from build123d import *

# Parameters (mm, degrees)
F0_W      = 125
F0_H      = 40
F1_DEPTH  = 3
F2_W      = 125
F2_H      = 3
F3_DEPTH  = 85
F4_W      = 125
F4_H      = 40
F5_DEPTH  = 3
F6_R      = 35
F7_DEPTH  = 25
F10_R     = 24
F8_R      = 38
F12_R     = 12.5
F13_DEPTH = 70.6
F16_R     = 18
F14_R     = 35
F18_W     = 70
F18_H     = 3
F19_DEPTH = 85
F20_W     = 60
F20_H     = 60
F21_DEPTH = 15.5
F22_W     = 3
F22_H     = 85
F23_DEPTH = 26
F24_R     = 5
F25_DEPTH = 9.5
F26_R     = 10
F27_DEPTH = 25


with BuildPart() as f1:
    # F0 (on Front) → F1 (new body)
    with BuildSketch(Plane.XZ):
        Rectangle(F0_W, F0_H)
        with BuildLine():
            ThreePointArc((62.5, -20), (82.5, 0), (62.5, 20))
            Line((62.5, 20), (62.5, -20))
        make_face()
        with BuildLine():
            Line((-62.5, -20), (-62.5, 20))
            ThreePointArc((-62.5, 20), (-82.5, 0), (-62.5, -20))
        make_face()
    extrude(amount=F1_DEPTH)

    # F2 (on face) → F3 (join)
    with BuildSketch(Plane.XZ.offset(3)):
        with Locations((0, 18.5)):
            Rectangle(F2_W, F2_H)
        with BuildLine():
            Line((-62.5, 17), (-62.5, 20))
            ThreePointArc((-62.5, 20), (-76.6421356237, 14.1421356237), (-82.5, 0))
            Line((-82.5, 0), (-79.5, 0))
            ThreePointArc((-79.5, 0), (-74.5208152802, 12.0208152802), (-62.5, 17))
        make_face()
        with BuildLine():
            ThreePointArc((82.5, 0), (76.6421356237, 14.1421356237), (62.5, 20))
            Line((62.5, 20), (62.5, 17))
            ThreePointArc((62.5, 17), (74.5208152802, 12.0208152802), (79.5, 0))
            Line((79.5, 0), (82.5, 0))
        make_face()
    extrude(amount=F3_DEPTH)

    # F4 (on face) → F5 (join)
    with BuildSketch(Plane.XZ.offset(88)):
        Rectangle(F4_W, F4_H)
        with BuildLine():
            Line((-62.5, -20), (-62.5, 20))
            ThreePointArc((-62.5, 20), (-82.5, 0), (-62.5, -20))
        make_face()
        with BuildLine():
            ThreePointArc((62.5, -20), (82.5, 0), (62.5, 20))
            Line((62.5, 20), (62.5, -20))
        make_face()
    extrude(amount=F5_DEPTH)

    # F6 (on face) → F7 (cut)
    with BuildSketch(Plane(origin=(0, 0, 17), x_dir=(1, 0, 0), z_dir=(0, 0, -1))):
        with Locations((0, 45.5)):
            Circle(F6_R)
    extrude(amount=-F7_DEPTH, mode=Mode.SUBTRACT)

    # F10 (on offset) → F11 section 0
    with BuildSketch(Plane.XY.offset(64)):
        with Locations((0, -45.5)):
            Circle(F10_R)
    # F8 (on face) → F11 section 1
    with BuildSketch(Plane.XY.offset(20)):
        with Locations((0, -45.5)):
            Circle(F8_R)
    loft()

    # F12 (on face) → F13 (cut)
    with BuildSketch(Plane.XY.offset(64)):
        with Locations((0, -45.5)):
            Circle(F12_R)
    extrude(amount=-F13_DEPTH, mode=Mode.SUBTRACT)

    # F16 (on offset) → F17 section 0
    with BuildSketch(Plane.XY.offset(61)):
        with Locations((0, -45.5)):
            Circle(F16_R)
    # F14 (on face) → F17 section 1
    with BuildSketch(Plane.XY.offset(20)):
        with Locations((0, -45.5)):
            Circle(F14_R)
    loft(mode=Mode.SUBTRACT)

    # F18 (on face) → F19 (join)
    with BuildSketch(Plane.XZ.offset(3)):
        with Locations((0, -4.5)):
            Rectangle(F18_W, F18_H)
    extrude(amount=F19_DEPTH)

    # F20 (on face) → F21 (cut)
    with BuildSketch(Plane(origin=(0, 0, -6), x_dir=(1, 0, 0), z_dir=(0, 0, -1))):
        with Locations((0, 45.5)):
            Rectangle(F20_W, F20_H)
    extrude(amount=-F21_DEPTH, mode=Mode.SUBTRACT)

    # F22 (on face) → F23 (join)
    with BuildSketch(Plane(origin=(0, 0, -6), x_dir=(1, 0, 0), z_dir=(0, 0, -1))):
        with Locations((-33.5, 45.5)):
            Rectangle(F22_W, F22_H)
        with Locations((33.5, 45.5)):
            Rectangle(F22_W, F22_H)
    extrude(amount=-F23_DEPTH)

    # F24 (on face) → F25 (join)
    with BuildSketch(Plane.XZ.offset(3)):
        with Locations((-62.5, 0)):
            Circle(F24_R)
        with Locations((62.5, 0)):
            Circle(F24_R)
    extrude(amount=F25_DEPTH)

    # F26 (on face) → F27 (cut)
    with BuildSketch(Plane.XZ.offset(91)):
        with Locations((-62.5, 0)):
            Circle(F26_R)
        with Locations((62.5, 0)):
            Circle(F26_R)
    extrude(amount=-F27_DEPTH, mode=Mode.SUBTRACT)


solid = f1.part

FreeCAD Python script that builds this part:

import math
import FreeCAD as App
import Part
import Sketcher

V = App.Vector
Q = App.Units.Quantity

doc = App.newDocument("Part")
body = doc.addObject("PartDesign::Body", "Body")

# Sketch on XZ plane
sketch1 = body.newObject("Sketcher::SketchObject", "Sketch")
sketch1.AttachmentSupport = (doc.getObject("XZ_Plane"), [""])
sketch1.MapMode = "FlatFace"
sketch1.addGeometry(Part.LineSegment(V(-62, -20, 0), V(62, -20, 0)), False)
sketch1.addGeometry(Part.ArcOfCircle(Part.Circle(V(62, 0, 0), V(0, 0, 1), 20), math.radians(-90), math.radians(90)), False)
sketch1.addGeometry(Part.LineSegment(V(62, 20, 0), V(-62, 20, 0)), False)
sketch1.addGeometry(Part.ArcOfCircle(Part.Circle(V(-62, 0, 0), V(0, 0, 1), 20), math.radians(90), math.radians(270)), False)
sketch1.addConstraint(Sketcher.Constraint("Tangent", 0, 2, 1, 1))
sketch1.addConstraint(Sketcher.Constraint("Tangent", 1, 2, 2, 1))
sketch1.addConstraint(Sketcher.Constraint("Tangent", 2, 2, 3, 1))
sketch1.addConstraint(Sketcher.Constraint("Tangent", 3, 2, 0, 1))
sketch1.addConstraint(Sketcher.Constraint("Horizontal", 0))
sketch1.addConstraint(Sketcher.Constraint("Horizontal", 2))
sketch1.addConstraint(Sketcher.Constraint("Symmetric", 1, 3, 3, 3, -1, 1))
sketch1.addConstraint(Sketcher.Constraint("Radius", 1, Q("20 mm")))
sketch1.addConstraint(Sketcher.Constraint("DistanceX", 0, 1, 0, 2, Q("125 mm")))
pad1 = body.newObject("PartDesign::Pad", "Pad")
pad1.Profile = sketch1
pad1.Length = 3

# Sketch on XZ plane
sketch2 = body.newObject("Sketcher::SketchObject", "Sketch001")
sketch2.AttachmentSupport = (doc.getObject("XZ_Plane"), [""])
sketch2.MapMode = "FlatFace"
sketch2.AttachmentOffset = App.Placement(V(0, 0, 3), App.Rotation())
sketch2.addGeometry(Part.LineSegment(V(-62.5, 17, 0), V(62.5, 17, 0)), False)
sketch2.addGeometry(Part.ArcOfCircle(Part.Circle(V(62.5, 0, 0), V(0, 0, 1), 17), math.radians(0), math.radians(90)), False)
sketch2.addGeometry(Part.LineSegment(V(79.5, 0, 0), V(82.5, 0, 0)), False)
sketch2.addGeometry(Part.ArcOfCircle(Part.Circle(V(62.5, 0, 0), V(0, 0, 1), 20), math.radians(0), math.radians(90)), False)
sketch2.addGeometry(Part.LineSegment(V(62.5, 20, 0), V(-62.5, 20, 0)), False)
sketch2.addGeometry(Part.ArcOfCircle(Part.Circle(V(-62.5, 0, 0), V(0, 0, 1), 20), math.radians(90), math.radians(180)), False)
sketch2.addGeometry(Part.LineSegment(V(-82.5, 0, 0), V(-79.5, 0, 0)), False)
sketch2.addGeometry(Part.ArcOfCircle(Part.Circle(V(-62.5, 0, 0), V(0, 0, 1), 17), math.radians(90), math.radians(180)), False)
sketch2.addConstraint(Sketcher.Constraint("Tangent", 0, 2, 1, 2))
sketch2.addConstraint(Sketcher.Constraint("Coincident", 1, 1, 2, 1))
sketch2.addConstraint(Sketcher.Constraint("Coincident", 2, 2, 3, 1))
sketch2.addConstraint(Sketcher.Constraint("Tangent", 3, 2, 4, 1))
sketch2.addConstraint(Sketcher.Constraint("Tangent", 4, 2, 5, 1))
sketch2.addConstraint(Sketcher.Constraint("Coincident", 5, 2, 6, 1))
sketch2.addConstraint(Sketcher.Constraint("Coincident", 6, 2, 7, 2))
sketch2.addConstraint(Sketcher.Constraint("Tangent", 7, 1, 0, 1))
sketch2.addConstraint(Sketcher.Constraint("Horizontal", 0))
sketch2.addConstraint(Sketcher.Constraint("Horizontal", 2))
sketch2.addConstraint(Sketcher.Constraint("Horizontal", 4))
sketch2.addConstraint(Sketcher.Constraint("Horizontal", 6))
sketch2.addConstraint(Sketcher.Constraint("Coincident", 3, 3, 1, 3))
sketch2.addConstraint(Sketcher.Constraint("Coincident", 7, 3, 5, 3))
sketch2.addConstraint(Sketcher.Constraint("Equal", 3, 5))
sketch2.addConstraint(Sketcher.Constraint("Symmetric", 1, 3, 5, 3, -1, 1))
sketch2.addConstraint(Sketcher.Constraint("PointOnObject", 1, 1, -1))
sketch2.addConstraint(Sketcher.Constraint("PointOnObject", 5, 2, -1))
sketch2.addConstraint(Sketcher.Constraint("Radius", 1, Q("17 mm")))
sketch2.addConstraint(Sketcher.Constraint("Radius", 3, Q("20 mm")))
sketch2.addConstraint(Sketcher.Constraint("DistanceX", 0, 1, 0, 2, Q("125 mm")))
pad2 = body.newObject("PartDesign::Pad", "Pad001")
pad2.Profile = sketch2
pad2.Length = 85

# Sketch on XZ plane
sketch3 = body.newObject("Sketcher::SketchObject", "Sketch002")
sketch3.AttachmentSupport = (doc.getObject("XZ_Plane"), [""])
sketch3.MapMode = "FlatFace"
sketch3.AttachmentOffset = App.Placement(V(0, 0, 88), App.Rotation())
sketch3.addGeometry(Part.LineSegment(V(-62, -20, 0), V(62, -20, 0)), False)
sketch3.addGeometry(Part.ArcOfCircle(Part.Circle(V(62, 0, 0), V(0, 0, 1), 20), math.radians(-90), math.radians(90)), False)
sketch3.addGeometry(Part.LineSegment(V(62, 20, 0), V(-62, 20, 0)), False)
sketch3.addGeometry(Part.ArcOfCircle(Part.Circle(V(-62, 0, 0), V(0, 0, 1), 20), math.radians(90), math.radians(270)), False)
sketch3.addConstraint(Sketcher.Constraint("Tangent", 0, 2, 1, 1))
sketch3.addConstraint(Sketcher.Constraint("Tangent", 1, 2, 2, 1))
sketch3.addConstraint(Sketcher.Constraint("Tangent", 2, 2, 3, 1))
sketch3.addConstraint(Sketcher.Constraint("Tangent", 3, 2, 0, 1))
sketch3.addConstraint(Sketcher.Constraint("Horizontal", 0))
sketch3.addConstraint(Sketcher.Constraint("Horizontal", 2))
sketch3.addConstraint(Sketcher.Constraint("Symmetric", 1, 3, 3, 3, -1, 1))
sketch3.addConstraint(Sketcher.Constraint("Radius", 1, Q("20 mm")))
sketch3.addConstraint(Sketcher.Constraint("DistanceX", 0, 1, 0, 2, Q("125 mm")))
pad3 = body.newObject("PartDesign::Pad", "Pad002")
pad3.Profile = sketch3
pad3.Length = 3

# Sketch on XY plane
sketch4 = body.newObject("Sketcher::SketchObject", "Sketch003")
sketch4.AttachmentSupport = (doc.getObject("XY_Plane"), [""])
sketch4.MapMode = "FlatFace"
sketch4.AttachmentOffset = App.Placement(V(0, 0, 17), App.Rotation())
sketch4.addGeometry(Part.Circle(V(0, -46, 0), V(0, 0, 1), 35), False)
sketch4.addConstraint(Sketcher.Constraint("PointOnObject", 0, 3, -2))
sketch4.addConstraint(Sketcher.Constraint("Diameter", 0, Q("70 mm")))
sketch4.addConstraint(Sketcher.Constraint("DistanceY", 0, 3, -1, 1, Q("45.5 mm")))
pocket1 = body.newObject("PartDesign::Pocket", "Pocket")
pocket1.Profile = sketch4
pocket1.Length = 25
pocket1.Reversed = True

# Sketch on XY plane
sketch5 = body.newObject("Sketcher::SketchObject", "Sketch004")
sketch5.AttachmentSupport = (doc.getObject("XY_Plane"), [""])
sketch5.MapMode = "FlatFace"
sketch5.AttachmentOffset = App.Placement(V(0, 0, 64), App.Rotation())
sketch5.addGeometry(Part.Circle(V(0, -46, 0), V(0, 0, 1), 24), False)
sketch5.addConstraint(Sketcher.Constraint("PointOnObject", 0, 3, -2))
sketch5.addConstraint(Sketcher.Constraint("Diameter", 0, Q("48 mm")))
sketch5.addConstraint(Sketcher.Constraint("DistanceY", 0, 3, -1, 1, Q("45.5 mm")))

# Sketch on XY plane
sketch6 = body.newObject("Sketcher::SketchObject", "Sketch005")
sketch6.AttachmentSupport = (doc.getObject("XY_Plane"), [""])
sketch6.MapMode = "FlatFace"
sketch6.AttachmentOffset = App.Placement(V(0, 0, 20), App.Rotation())
sketch6.addGeometry(Part.Circle(V(0, -46, 0), V(0, 0, 1), 38), False)
sketch6.addConstraint(Sketcher.Constraint("PointOnObject", 0, 3, -2))
sketch6.addConstraint(Sketcher.Constraint("Diameter", 0, Q("76 mm")))
sketch6.addConstraint(Sketcher.Constraint("DistanceY", 0, 3, -1, 1, Q("45.5 mm")))

additiveloft = body.newObject("PartDesign::AdditiveLoft", "AdditiveLoft")
additiveloft.Profile = sketch5
additiveloft.Sections = [sketch6]

# Sketch on XY plane
sketch7 = body.newObject("Sketcher::SketchObject", "Sketch006")
sketch7.AttachmentSupport = (doc.getObject("XY_Plane"), [""])
sketch7.MapMode = "FlatFace"
sketch7.AttachmentOffset = App.Placement(V(0, 0, 64), App.Rotation())
sketch7.addGeometry(Part.Circle(V(0, -46, 0), V(0, 0, 1), 12), False)
sketch7.addConstraint(Sketcher.Constraint("PointOnObject", 0, 3, -2))
sketch7.addConstraint(Sketcher.Constraint("Diameter", 0, Q("25 mm")))
sketch7.addConstraint(Sketcher.Constraint("DistanceY", 0, 3, -1, 1, Q("45.5 mm")))
pocket2 = body.newObject("PartDesign::Pocket", "Pocket001")
pocket2.Profile = sketch7
pocket2.Length = 70.6

# Sketch on XY plane
sketch8 = body.newObject("Sketcher::SketchObject", "Sketch007")
sketch8.AttachmentSupport = (doc.getObject("XY_Plane"), [""])
sketch8.MapMode = "FlatFace"
sketch8.AttachmentOffset = App.Placement(V(0, 0, 61), App.Rotation())
sketch8.addGeometry(Part.Circle(V(0, -46, 0), V(0, 0, 1), 18), False)
sketch8.addConstraint(Sketcher.Constraint("PointOnObject", 0, 3, -2))
sketch8.addConstraint(Sketcher.Constraint("Diameter", 0, Q("36 mm")))
sketch8.addConstraint(Sketcher.Constraint("DistanceY", 0, 3, -1, 1, Q("45.5 mm")))

# Sketch on XY plane
sketch9 = body.newObject("Sketcher::SketchObject", "Sketch008")
sketch9.AttachmentSupport = (doc.getObject("XY_Plane"), [""])
sketch9.MapMode = "FlatFace"
sketch9.AttachmentOffset = App.Placement(V(0, 0, 20), App.Rotation())
sketch9.addGeometry(Part.Circle(V(0, -46, 0), V(0, 0, 1), 35), False)
sketch9.addConstraint(Sketcher.Constraint("PointOnObject", 0, 3, -2))
sketch9.addConstraint(Sketcher.Constraint("Diameter", 0, Q("70 mm")))
sketch9.addConstraint(Sketcher.Constraint("DistanceY", 0, 3, -1, 1, Q("45.5 mm")))

subtractiveloft = body.newObject("PartDesign::SubtractiveLoft", "SubtractiveLoft")
subtractiveloft.Profile = sketch8
subtractiveloft.Sections = [sketch9]

# Sketch on XZ plane
sketch10 = body.newObject("Sketcher::SketchObject", "Sketch009")
sketch10.AttachmentSupport = (doc.getObject("XZ_Plane"), [""])
sketch10.MapMode = "FlatFace"
sketch10.AttachmentOffset = App.Placement(V(0, 0, 3), App.Rotation())
sketch10.addGeometry(Part.LineSegment(V(-35, -3, 0), V(-35, -6, 0)), False)
sketch10.addGeometry(Part.LineSegment(V(-35, -6, 0), V(35, -6, 0)), False)
sketch10.addGeometry(Part.LineSegment(V(35, -6, 0), V(35, -3, 0)), False)
sketch10.addGeometry(Part.LineSegment(V(35, -3, 0), V(-35, -3, 0)), False)
sketch10.addConstraint(Sketcher.Constraint("Coincident", 0, 2, 1, 1))
sketch10.addConstraint(Sketcher.Constraint("Coincident", 1, 2, 2, 1))
sketch10.addConstraint(Sketcher.Constraint("Coincident", 2, 2, 3, 1))
sketch10.addConstraint(Sketcher.Constraint("Coincident", 3, 2, 0, 1))
sketch10.addConstraint(Sketcher.Constraint("Vertical", 0))
sketch10.addConstraint(Sketcher.Constraint("Horizontal", 1))
sketch10.addConstraint(Sketcher.Constraint("Vertical", 2))
sketch10.addConstraint(Sketcher.Constraint("Horizontal", 3))
sketch10.addConstraint(Sketcher.Constraint("DistanceX", 1, 1, 1, 2, Q("70 mm")))
sketch10.addConstraint(Sketcher.Constraint("DistanceY", 0, 2, 0, 1, Q("3 mm")))
sketch10.addConstraint(Sketcher.Constraint("DistanceX", 0, 2, -1, 1, Q("35 mm")))
sketch10.addConstraint(Sketcher.Constraint("DistanceY", 0, 2, -1, 1, Q("6 mm")))
pad4 = body.newObject("PartDesign::Pad", "Pad003")
pad4.Profile = sketch10
pad4.Length = 85

# Sketch on XY plane
sketch11 = body.newObject("Sketcher::SketchObject", "Sketch010")
sketch11.AttachmentSupport = (doc.getObject("XY_Plane"), [""])
sketch11.MapMode = "FlatFace"
sketch11.AttachmentOffset = App.Placement(V(0, 0, -6), App.Rotation())
sketch11.addGeometry(Part.LineSegment(V(-30, -76, 0), V(-30, -16, 0)), False)
sketch11.addGeometry(Part.LineSegment(V(-30, -16, 0), V(30, -16, 0)), False)
sketch11.addGeometry(Part.LineSegment(V(30, -16, 0), V(30, -76, 0)), False)
sketch11.addGeometry(Part.LineSegment(V(30, -76, 0), V(-30, -76, 0)), False)
sketch11.addConstraint(Sketcher.Constraint("Coincident", 0, 2, 1, 1))
sketch11.addConstraint(Sketcher.Constraint("Coincident", 1, 2, 2, 1))
sketch11.addConstraint(Sketcher.Constraint("Coincident", 2, 2, 3, 1))
sketch11.addConstraint(Sketcher.Constraint("Coincident", 3, 2, 0, 1))
sketch11.addConstraint(Sketcher.Constraint("Vertical", 0))
sketch11.addConstraint(Sketcher.Constraint("Horizontal", 1))
sketch11.addConstraint(Sketcher.Constraint("Vertical", 2))
sketch11.addConstraint(Sketcher.Constraint("Horizontal", 3))
sketch11.addConstraint(Sketcher.Constraint("Equal", 3, 0))
sketch11.addConstraint(Sketcher.Constraint("DistanceX", 1, 1, 1, 2, Q("60 mm")))
sketch11.addConstraint(Sketcher.Constraint("DistanceX", 0, 2, -1, 1, Q("30 mm")))
sketch11.addConstraint(Sketcher.Constraint("DistanceY", 0, 2, -1, 1, Q("15.5 mm")))
pocket3 = body.newObject("PartDesign::Pocket", "Pocket002")
pocket3.Profile = sketch11
pocket3.Length = 15.5
pocket3.Reversed = True

# Sketch on XY plane
sketch12 = body.newObject("Sketcher::SketchObject", "Sketch011")
sketch12.AttachmentSupport = (doc.getObject("XY_Plane"), [""])
sketch12.MapMode = "FlatFace"
sketch12.AttachmentOffset = App.Placement(V(0, 0, -6), App.Rotation())
sketch12.addGeometry(Part.LineSegment(V(-35, -88, 0), V(-35, -3, 0)), False)
sketch12.addGeometry(Part.LineSegment(V(-35, -3, 0), V(-32, -3, 0)), False)
sketch12.addGeometry(Part.LineSegment(V(-32, -3, 0), V(-32, -88, 0)), False)
sketch12.addGeometry(Part.LineSegment(V(-32, -88, 0), V(-35, -88, 0)), False)
sketch12.addGeometry(Part.LineSegment(V(32, -88, 0), V(32, -3, 0)), False)
sketch12.addGeometry(Part.LineSegment(V(32, -3, 0), V(35, -3, 0)), False)
sketch12.addGeometry(Part.LineSegment(V(35, -3, 0), V(35, -88, 0)), False)
sketch12.addGeometry(Part.LineSegment(V(35, -88, 0), V(32, -88, 0)), False)
sketch12.addConstraint(Sketcher.Constraint("Coincident", 0, 2, 1, 1))
sketch12.addConstraint(Sketcher.Constraint("Coincident", 1, 2, 2, 1))
sketch12.addConstraint(Sketcher.Constraint("Coincident", 2, 2, 3, 1))
sketch12.addConstraint(Sketcher.Constraint("Coincident", 3, 2, 0, 1))
sketch12.addConstraint(Sketcher.Constraint("Coincident", 4, 2, 5, 1))
sketch12.addConstraint(Sketcher.Constraint("Coincident", 5, 2, 6, 1))
sketch12.addConstraint(Sketcher.Constraint("Coincident", 6, 2, 7, 1))
sketch12.addConstraint(Sketcher.Constraint("Coincident", 7, 2, 4, 1))
sketch12.addConstraint(Sketcher.Constraint("Vertical", 0))
sketch12.addConstraint(Sketcher.Constraint("Horizontal", 1))
sketch12.addConstraint(Sketcher.Constraint("Vertical", 2))
sketch12.addConstraint(Sketcher.Constraint("Horizontal", 3))
sketch12.addConstraint(Sketcher.Constraint("Vertical", 4))
sketch12.addConstraint(Sketcher.Constraint("Horizontal", 5))
sketch12.addConstraint(Sketcher.Constraint("Vertical", 6))
sketch12.addConstraint(Sketcher.Constraint("Horizontal", 7))
sketch12.addConstraint(Sketcher.Constraint("Symmetric", 1, 2, 4, 2, -2))
sketch12.addConstraint(Sketcher.Constraint("Symmetric", 3, 2, 6, 2, -2))
sketch12.addConstraint(Sketcher.Constraint("DistanceX", 1, 1, 1, 2, Q("3 mm")))
sketch12.addConstraint(Sketcher.Constraint("DistanceY", 0, 1, 0, 2, Q("85 mm")))
sketch12.addConstraint(Sketcher.Constraint("DistanceX", 0, 2, -1, 1, Q("35 mm")))
sketch12.addConstraint(Sketcher.Constraint("DistanceY", 0, 2, -1, 1, Q("3 mm")))
pad5 = body.newObject("PartDesign::Pad", "Pad004")
pad5.Profile = sketch12
pad5.Length = 26

# Sketch on XZ plane
sketch13 = body.newObject("Sketcher::SketchObject", "Sketch012")
sketch13.AttachmentSupport = (doc.getObject("XZ_Plane"), [""])
sketch13.MapMode = "FlatFace"
sketch13.AttachmentOffset = App.Placement(V(0, 0, 3), App.Rotation())
sketch13.addGeometry(Part.Circle(V(-62, 0, 0), V(0, 0, 1), 5), False)
sketch13.addGeometry(Part.Circle(V(62, 0, 0), V(0, 0, 1), 5), False)
sketch13.addConstraint(Sketcher.Constraint("Equal", 0, 1))
sketch13.addConstraint(Sketcher.Constraint("Symmetric", 0, 3, 1, 3, -1, 1))
sketch13.addConstraint(Sketcher.Constraint("PointOnObject", 0, 3, -1))
sketch13.addConstraint(Sketcher.Constraint("Diameter", 0, Q("10 mm")))
sketch13.addConstraint(Sketcher.Constraint("DistanceX", 0, 3, 1, 3, Q("125 mm")))
pad6 = body.newObject("PartDesign::Pad", "Pad005")
pad6.Profile = sketch13
pad6.Length = 9.5

# Sketch on XZ plane
sketch14 = body.newObject("Sketcher::SketchObject", "Sketch013")
sketch14.AttachmentSupport = (doc.getObject("XZ_Plane"), [""])
sketch14.MapMode = "FlatFace"
sketch14.AttachmentOffset = App.Placement(V(0, 0, 91), App.Rotation())
sketch14.addGeometry(Part.Circle(V(-62, 0, 0), V(0, 0, 1), 10), False)
sketch14.addGeometry(Part.Circle(V(62, 0, 0), V(0, 0, 1), 10), False)
sketch14.addConstraint(Sketcher.Constraint("Equal", 0, 1))
sketch14.addConstraint(Sketcher.Constraint("Symmetric", 0, 3, 1, 3, -1, 1))
sketch14.addConstraint(Sketcher.Constraint("PointOnObject", 0, 3, -1))
sketch14.addConstraint(Sketcher.Constraint("Diameter", 0, Q("20 mm")))
sketch14.addConstraint(Sketcher.Constraint("DistanceX", 0, 3, 1, 3, Q("125 mm")))
pocket4 = body.newObject("PartDesign::Pocket", "Pocket003")
pocket4.Profile = sketch14
pocket4.Length = 25

doc.recompute()
